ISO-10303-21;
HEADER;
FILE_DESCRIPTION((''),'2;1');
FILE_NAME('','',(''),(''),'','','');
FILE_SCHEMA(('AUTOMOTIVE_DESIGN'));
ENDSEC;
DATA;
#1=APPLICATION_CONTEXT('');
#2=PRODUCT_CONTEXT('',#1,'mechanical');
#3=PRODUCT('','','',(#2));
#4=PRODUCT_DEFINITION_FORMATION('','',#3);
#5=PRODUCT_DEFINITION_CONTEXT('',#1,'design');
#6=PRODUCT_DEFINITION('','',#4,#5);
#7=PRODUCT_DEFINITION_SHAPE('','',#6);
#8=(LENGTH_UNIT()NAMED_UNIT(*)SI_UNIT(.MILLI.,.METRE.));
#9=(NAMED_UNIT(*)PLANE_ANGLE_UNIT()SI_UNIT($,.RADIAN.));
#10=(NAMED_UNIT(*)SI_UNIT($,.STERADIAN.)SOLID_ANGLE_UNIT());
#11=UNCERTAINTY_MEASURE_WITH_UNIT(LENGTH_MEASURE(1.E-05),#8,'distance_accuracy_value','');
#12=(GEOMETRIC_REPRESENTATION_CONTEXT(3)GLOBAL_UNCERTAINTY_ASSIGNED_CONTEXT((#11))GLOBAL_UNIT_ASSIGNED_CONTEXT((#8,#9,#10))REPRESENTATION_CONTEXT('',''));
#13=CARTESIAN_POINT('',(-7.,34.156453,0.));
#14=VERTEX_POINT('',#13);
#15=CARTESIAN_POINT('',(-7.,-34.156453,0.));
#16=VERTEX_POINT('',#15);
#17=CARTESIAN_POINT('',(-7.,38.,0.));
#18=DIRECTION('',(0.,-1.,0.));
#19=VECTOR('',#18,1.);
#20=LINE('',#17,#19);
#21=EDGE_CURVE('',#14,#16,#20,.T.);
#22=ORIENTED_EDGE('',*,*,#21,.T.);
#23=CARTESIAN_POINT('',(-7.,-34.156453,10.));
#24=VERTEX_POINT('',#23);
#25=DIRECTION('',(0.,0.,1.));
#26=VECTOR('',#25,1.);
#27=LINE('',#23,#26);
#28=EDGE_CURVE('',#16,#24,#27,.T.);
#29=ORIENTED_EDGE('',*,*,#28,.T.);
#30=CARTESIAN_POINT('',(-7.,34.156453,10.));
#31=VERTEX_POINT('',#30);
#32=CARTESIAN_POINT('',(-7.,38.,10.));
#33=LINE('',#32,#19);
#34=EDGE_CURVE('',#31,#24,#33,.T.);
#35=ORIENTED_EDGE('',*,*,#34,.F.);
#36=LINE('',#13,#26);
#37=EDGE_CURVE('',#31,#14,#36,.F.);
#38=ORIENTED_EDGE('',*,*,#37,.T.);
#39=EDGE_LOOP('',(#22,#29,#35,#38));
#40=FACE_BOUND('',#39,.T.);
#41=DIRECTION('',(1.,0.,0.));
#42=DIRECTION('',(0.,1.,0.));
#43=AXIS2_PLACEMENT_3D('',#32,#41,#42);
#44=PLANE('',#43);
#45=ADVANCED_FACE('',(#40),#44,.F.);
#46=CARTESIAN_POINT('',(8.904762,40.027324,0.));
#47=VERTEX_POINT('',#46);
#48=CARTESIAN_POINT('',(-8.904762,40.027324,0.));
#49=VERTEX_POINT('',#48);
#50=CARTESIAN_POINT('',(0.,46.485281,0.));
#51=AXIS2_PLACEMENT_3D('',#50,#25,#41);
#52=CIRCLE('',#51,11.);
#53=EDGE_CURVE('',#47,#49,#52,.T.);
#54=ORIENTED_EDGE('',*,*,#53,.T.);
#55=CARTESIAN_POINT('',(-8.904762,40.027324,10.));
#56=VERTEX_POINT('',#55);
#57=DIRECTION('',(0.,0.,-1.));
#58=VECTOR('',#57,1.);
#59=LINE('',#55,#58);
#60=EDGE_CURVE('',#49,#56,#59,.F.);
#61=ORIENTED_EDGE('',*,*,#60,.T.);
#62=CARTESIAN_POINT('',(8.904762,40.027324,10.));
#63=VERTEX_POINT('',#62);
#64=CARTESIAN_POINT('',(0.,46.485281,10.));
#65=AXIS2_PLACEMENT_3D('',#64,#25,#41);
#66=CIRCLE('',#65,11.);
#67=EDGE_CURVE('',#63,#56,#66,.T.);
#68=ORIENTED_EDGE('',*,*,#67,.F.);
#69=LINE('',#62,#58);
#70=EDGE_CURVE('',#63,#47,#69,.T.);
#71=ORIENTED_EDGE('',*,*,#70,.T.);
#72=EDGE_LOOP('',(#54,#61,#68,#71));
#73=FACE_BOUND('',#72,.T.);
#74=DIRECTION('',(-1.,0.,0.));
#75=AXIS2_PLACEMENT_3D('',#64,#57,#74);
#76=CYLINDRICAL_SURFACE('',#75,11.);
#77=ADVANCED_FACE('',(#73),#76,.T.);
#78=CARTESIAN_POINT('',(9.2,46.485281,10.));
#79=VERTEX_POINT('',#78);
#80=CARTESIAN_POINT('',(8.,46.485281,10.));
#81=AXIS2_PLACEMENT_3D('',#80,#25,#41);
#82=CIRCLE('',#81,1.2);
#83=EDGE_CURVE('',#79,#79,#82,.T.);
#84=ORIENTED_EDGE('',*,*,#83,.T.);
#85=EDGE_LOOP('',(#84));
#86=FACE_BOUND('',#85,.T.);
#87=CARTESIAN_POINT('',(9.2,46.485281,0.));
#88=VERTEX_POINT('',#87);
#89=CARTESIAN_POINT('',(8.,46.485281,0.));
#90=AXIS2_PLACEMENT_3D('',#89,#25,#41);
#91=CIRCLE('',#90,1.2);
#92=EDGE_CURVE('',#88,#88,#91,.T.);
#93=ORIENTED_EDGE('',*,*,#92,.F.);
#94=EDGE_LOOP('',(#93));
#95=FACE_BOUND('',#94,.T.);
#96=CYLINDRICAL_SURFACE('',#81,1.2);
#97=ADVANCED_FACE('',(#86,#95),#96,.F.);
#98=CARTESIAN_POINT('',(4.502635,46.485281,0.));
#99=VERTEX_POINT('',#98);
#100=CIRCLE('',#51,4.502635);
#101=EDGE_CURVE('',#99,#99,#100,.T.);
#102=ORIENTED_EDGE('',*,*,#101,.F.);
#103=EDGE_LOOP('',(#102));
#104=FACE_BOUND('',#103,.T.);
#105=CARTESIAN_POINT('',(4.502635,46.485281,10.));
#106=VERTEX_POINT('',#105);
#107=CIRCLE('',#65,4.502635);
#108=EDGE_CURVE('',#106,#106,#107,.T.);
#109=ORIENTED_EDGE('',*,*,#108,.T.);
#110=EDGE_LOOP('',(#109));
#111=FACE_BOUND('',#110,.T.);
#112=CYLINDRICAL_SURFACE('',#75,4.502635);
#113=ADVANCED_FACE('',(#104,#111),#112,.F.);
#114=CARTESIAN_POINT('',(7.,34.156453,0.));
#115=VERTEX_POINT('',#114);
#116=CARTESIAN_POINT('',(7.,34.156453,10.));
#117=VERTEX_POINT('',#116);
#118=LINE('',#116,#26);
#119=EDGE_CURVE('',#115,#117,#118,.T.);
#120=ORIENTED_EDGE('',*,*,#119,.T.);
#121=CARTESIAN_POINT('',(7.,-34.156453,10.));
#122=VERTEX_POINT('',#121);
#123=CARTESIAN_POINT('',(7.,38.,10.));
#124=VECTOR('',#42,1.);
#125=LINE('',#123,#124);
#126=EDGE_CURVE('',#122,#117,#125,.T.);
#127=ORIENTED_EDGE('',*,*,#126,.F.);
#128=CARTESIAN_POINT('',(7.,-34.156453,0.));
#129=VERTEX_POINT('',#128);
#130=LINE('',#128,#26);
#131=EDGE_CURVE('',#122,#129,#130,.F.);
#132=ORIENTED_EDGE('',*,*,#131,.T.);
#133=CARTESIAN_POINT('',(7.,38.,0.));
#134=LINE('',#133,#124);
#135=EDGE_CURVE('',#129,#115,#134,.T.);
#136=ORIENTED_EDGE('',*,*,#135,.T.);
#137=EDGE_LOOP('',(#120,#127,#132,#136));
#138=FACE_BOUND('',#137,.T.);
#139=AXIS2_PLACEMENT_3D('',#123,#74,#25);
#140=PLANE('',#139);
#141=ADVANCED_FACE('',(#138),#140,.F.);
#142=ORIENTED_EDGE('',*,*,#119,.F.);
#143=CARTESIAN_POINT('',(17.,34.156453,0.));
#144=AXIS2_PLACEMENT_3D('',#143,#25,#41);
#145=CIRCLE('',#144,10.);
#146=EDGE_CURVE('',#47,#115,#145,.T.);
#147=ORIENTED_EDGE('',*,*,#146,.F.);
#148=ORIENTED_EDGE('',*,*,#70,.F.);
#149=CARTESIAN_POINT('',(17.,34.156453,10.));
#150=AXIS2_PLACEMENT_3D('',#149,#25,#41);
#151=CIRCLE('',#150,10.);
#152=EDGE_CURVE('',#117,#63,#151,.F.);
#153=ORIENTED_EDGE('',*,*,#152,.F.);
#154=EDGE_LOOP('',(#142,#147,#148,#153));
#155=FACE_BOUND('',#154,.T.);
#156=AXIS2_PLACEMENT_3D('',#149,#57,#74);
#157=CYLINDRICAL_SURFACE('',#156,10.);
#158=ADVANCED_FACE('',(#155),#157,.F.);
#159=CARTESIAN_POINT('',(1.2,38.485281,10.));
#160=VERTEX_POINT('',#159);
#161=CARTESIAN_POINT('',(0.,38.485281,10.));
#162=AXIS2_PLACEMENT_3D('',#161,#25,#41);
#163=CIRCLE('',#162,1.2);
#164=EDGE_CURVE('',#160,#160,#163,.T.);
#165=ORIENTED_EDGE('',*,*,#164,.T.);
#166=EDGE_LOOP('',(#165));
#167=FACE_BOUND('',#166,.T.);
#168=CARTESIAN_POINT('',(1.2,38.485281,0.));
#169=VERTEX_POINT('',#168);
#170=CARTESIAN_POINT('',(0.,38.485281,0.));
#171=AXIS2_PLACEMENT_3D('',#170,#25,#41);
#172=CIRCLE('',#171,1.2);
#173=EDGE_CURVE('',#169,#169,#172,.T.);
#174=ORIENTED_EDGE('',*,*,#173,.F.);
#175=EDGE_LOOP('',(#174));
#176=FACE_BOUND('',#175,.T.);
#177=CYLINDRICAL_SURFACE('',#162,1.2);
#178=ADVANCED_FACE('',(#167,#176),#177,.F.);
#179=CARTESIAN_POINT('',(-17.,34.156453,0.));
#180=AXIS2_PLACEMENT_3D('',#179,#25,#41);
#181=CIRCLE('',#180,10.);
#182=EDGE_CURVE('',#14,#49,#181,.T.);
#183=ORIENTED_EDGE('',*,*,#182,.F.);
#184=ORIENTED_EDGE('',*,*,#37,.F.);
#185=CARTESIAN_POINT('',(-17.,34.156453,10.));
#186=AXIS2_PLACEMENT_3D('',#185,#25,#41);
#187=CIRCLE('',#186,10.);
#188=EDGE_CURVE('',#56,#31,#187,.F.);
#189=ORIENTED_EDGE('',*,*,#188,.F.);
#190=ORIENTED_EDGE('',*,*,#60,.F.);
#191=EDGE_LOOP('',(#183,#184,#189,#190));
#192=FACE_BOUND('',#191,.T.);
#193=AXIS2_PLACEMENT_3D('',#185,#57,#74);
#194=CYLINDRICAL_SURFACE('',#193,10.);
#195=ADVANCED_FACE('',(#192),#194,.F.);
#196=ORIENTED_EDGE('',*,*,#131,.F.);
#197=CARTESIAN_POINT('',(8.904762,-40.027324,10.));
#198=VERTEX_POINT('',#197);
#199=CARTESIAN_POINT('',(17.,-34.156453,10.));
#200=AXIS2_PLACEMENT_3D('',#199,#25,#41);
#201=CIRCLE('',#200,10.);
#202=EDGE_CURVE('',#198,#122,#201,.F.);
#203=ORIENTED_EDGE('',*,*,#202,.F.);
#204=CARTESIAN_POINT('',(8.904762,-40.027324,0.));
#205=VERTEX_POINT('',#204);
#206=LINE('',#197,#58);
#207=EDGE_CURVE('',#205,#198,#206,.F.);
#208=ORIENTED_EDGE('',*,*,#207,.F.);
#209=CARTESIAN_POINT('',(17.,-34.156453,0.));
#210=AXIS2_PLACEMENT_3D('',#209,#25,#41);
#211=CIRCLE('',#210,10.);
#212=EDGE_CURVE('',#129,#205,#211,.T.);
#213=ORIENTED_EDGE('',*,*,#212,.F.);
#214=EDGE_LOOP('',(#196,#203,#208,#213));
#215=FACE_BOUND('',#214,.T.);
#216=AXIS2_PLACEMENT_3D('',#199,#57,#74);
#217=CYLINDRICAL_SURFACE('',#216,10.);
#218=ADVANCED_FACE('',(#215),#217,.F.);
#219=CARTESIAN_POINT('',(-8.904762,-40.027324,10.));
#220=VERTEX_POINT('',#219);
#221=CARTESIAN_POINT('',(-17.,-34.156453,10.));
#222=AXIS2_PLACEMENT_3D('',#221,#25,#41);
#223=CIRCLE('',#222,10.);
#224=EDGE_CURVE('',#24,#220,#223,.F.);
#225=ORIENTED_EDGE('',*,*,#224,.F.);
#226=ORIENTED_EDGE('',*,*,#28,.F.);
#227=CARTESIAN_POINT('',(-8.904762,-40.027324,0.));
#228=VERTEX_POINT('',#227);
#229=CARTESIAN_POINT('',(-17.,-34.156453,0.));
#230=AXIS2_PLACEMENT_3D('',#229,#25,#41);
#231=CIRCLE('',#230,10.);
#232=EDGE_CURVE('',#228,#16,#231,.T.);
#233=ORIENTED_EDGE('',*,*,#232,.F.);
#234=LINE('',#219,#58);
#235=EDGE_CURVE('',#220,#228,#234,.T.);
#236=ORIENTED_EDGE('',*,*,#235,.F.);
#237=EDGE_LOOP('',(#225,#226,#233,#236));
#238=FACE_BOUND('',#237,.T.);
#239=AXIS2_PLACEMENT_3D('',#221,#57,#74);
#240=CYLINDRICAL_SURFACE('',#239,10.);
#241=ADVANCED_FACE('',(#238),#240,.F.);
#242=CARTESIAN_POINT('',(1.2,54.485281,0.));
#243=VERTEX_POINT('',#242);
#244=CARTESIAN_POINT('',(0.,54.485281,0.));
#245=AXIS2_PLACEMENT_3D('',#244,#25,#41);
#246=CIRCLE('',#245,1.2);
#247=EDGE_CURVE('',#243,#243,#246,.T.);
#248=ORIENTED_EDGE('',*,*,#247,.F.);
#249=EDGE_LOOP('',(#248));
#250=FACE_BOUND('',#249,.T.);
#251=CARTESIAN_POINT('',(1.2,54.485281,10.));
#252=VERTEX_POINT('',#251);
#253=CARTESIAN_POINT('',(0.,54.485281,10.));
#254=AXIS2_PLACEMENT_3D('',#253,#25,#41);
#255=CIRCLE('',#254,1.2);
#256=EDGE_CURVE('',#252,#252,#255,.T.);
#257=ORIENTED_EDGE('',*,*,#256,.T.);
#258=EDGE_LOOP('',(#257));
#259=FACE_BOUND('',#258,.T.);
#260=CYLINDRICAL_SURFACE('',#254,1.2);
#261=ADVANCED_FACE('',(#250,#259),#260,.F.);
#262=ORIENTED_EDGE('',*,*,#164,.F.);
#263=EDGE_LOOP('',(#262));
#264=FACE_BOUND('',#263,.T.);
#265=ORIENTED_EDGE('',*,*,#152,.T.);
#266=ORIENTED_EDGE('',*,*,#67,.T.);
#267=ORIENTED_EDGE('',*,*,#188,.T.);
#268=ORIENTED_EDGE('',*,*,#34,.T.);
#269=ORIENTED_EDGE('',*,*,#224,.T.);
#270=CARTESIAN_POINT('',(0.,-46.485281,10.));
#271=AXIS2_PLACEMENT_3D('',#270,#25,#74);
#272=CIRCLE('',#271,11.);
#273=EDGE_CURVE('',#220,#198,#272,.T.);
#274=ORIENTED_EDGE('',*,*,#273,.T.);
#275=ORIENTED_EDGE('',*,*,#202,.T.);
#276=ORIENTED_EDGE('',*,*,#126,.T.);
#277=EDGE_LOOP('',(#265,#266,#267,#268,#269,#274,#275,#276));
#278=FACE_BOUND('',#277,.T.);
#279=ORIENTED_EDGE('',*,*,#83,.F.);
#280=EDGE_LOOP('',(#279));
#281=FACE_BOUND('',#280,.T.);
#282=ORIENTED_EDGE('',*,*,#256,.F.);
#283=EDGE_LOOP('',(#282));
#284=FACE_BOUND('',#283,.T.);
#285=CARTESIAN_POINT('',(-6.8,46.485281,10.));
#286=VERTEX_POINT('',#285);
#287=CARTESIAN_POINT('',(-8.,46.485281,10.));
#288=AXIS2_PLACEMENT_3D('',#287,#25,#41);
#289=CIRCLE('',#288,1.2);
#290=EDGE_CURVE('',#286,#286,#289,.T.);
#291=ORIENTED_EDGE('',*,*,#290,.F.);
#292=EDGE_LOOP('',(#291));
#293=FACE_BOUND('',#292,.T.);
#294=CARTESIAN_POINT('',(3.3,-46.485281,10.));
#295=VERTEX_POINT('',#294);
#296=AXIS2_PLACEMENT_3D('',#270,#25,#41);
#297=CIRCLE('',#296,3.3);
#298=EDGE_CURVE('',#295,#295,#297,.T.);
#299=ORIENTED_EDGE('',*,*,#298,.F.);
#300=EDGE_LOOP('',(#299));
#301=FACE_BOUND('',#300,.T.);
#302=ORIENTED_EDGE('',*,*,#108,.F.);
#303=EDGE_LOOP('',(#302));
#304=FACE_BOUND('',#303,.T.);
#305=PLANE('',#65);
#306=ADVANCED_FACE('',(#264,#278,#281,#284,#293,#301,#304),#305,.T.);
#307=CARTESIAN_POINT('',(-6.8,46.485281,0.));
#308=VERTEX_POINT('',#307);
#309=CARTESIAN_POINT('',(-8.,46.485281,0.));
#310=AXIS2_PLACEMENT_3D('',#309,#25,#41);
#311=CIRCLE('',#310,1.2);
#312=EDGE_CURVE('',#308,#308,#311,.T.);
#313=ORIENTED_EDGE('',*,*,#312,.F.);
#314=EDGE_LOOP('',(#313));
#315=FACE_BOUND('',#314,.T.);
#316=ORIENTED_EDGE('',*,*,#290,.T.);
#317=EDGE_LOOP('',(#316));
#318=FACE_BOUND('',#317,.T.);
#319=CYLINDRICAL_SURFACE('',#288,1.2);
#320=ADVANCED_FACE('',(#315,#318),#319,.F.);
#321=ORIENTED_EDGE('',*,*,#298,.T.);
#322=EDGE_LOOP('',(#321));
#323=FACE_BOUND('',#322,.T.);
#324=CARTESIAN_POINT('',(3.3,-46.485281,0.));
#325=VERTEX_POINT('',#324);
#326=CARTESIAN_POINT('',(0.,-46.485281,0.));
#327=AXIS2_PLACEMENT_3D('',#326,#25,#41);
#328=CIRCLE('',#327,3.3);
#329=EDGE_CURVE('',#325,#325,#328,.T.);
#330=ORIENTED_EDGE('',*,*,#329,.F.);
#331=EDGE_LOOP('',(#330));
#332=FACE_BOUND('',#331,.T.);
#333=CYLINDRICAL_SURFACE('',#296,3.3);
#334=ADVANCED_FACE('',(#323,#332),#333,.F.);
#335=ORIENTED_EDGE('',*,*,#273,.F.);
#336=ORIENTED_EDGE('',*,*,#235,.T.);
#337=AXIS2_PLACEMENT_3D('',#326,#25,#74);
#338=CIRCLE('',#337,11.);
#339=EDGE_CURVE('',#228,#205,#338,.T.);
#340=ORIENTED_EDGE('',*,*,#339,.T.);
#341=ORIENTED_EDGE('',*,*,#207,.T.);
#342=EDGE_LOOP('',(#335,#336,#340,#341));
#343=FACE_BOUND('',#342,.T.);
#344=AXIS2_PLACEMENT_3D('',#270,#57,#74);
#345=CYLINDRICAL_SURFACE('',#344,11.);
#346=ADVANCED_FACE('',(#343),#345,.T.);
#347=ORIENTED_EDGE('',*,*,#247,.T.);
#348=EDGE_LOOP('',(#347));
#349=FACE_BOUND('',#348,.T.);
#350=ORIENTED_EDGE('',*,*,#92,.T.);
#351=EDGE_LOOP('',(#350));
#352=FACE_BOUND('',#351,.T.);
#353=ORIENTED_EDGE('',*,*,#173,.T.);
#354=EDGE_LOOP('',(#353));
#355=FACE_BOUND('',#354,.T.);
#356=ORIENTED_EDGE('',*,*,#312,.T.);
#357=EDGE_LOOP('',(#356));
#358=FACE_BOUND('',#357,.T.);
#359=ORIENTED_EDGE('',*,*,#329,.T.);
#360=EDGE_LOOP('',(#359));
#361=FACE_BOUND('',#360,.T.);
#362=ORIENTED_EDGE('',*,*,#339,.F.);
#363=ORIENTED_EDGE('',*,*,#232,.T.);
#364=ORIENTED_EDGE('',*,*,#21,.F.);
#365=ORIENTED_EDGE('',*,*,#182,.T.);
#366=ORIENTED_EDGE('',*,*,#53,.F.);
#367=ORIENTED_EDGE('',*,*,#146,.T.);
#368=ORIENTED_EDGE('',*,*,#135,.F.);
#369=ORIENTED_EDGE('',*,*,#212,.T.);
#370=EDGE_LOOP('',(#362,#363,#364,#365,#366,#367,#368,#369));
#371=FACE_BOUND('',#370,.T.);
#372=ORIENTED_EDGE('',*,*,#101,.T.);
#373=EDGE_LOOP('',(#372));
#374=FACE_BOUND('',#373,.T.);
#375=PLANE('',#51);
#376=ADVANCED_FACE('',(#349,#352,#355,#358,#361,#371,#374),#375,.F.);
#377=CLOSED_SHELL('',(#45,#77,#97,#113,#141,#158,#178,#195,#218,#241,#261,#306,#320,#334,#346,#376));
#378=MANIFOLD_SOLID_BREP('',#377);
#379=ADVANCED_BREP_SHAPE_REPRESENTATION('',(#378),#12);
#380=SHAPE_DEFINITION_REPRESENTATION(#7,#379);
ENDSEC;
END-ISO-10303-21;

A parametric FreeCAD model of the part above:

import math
import FreeCAD as App
import Part
import Sketcher
Q = App.Units.Quantity


def edges_at(feature, points):
    """Names of the edges that pass closest to the given points."""
    edges = feature.Shape.Edges
    near = lambda p: min(range(len(edges)), key=lambda i: edges[i].distToShape(Part.Vertex(*p))[0])
    return sorted({f"Edge{near(p) + 1}" for p in points})

doc = App.newDocument("Part")
body = doc.addObject("PartDesign::Body", "Body")

# Sketch on XY plane
sketch1 = doc.addObject("Sketcher::SketchObject", "Sketch")
body.addObject(sketch1)
sketch1.AttachmentSupport = (doc.XY_Plane, [""])
sketch1.MapMode = "FlatFace"
sketch1.addGeometry([
    Part.LineSegment(App.Vector(-7, 38, 0), App.Vector(-7, -38, 0)),  # 0
    Part.ArcOfCircle(Part.Circle(App.Vector(0, -46.5, 0), App.Vector(0, 0, 1), 11), math.radians(130), math.radians(410)),  # 1
    Part.LineSegment(App.Vector(7, -38, 0), App.Vector(7, 38, 0)),  # 2
    Part.ArcOfCircle(Part.Circle(App.Vector(0, 46.5, 0), App.Vector(0, 0, 1), 11), math.radians(-50), math.radians(230)),  # 3
    Part.Circle(App.Vector(0, 46.5, 0), App.Vector(0, 0, 1), 4.5),  # 4
], False)
sketch1.addConstraint([
    Sketcher.Constraint("Coincident", 0, 2, 1, 1),
    Sketcher.Constraint("Coincident", 1, 2, 2, 1),
    Sketcher.Constraint("Coincident", 2, 2, 3, 1),
    Sketcher.Constraint("Coincident", 3, 2, 0, 1),
    Sketcher.Constraint("Vertical", 0),
    Sketcher.Constraint("Vertical", 2),
    Sketcher.Constraint("Coincident", 4, 3, 3, 3),
    Sketcher.Constraint("Equal", 1, 3),
    Sketcher.Constraint("Symmetric", 1, 3, 3, 3, -1, 1),
    Sketcher.Constraint("Symmetric", 0, 2, 1, 2, -2),
    Sketcher.Constraint("Radius", 1, Q("11 mm")),
    Sketcher.Constraint("DistanceY", 0, 2, 0, 1, Q("76 mm")),
    Sketcher.Constraint("DistanceX", 0, 2, -1, 1, Q("7 mm")),
    Sketcher.Constraint("Diameter", 4, Q("9.005271 mm")),
])
pad1 = doc.addObject("PartDesign::Pad", "Pad")
body.addObject(pad1)
pad1.Profile = sketch1
pad1.Length = 10

# Sketch on XY plane
sketch2 = doc.addObject("Sketcher::SketchObject", "Sketch001")
body.addObject(sketch2)
sketch2.AttachmentSupport = (doc.XY_Plane, [""])
sketch2.MapMode = "FlatFace"
sketch2.AttachmentOffset = App.Placement(App.Vector(0, 0, 10), App.Rotation())
sketch2.addGeometry([
    Part.Circle(App.Vector(-8, 46.5, 0), App.Vector(0, 0, 1), 1.2),
    Part.Circle(App.Vector(0, 54.5, 0), App.Vector(0, 0, 1), 1.2),
    Part.Circle(App.Vector(8, 46.5, 0), App.Vector(0, 0, 1), 1.2),
    Part.Circle(App.Vector(0, 38.5, 0), App.Vector(0, 0, 1), 1.2),
], False)
sketch2.addConstraint([
    Sketcher.Constraint("Equal", 0, 1),
    Sketcher.Constraint("Equal", 1, 2),
    Sketcher.Constraint("Equal", 2, 3),
    Sketcher.Constraint("Symmetric", 0, 3, 2, 3, -2),
    Sketcher.Constraint("PointOnObject", 1, 3, -2),
    Sketcher.Constraint("PointOnObject", 3, 3, -2),
    Sketcher.Constraint("Diameter", 0, Q("2.4 mm")),
    Sketcher.Constraint("DistanceX", 0, 3, -1, 1, Q("8 mm")),
    Sketcher.Constraint("DistanceY", 0, 3, 1, 3, Q("8 mm")),
    Sketcher.Constraint("DistanceY", 3, 3, 0, 3, Q("8 mm")),
    Sketcher.Constraint("DistanceY", -1, 1, 0, 3, Q("46.485281 mm")),
])
doc.recompute()
hole = doc.addObject("PartDesign::Hole", "Hole")
body.addObject(hole)
hole.Profile = sketch2
hole.ThreadType = "None"
hole.Diameter = 2.4
hole.DepthType = "ThroughAll"
doc.recompute()

fillet = doc.addObject("PartDesign::Fillet", "Fillet")
body.addObject(fillet)
fillet.Base = (hole, edges_at(hole, [
    (7, 38, 5),
    (7, -38, 5),
    (-7, -38, 5),
    (-7, 38, 5),
]))
fillet.Radius = 10

# Sketch on XY plane
sketch3 = doc.addObject("Sketcher::SketchObject", "Sketch002")
body.addObject(sketch3)
sketch3.AttachmentSupport = (doc.XY_Plane, [""])
sketch3.MapMode = "FlatFace"
sketch3.AttachmentOffset = App.Placement(App.Vector(0, 0, 10), App.Rotation())
sketch3.addGeometry(Part.Circle(App.Vector(0, -46.5, 0), App.Vector(0, 0, 1), 3.3), False)
sketch3.addConstraint([
    Sketcher.Constraint("PointOnObject", 0, 3, -2),
    Sketcher.Constraint("Diameter", 0, Q("6.6 mm")),
    Sketcher.Constraint("DistanceY", 0, 3, -1, 1, Q("46.485281 mm")),
])
doc.recompute()
hole2 = doc.addObject("PartDesign::Hole", "Hole001")
body.addObject(hole2)
hole2.Profile = sketch3
hole2.ThreadType = "None"
hole2.Diameter = 6.6
hole2.DepthType = "ThroughAll"

doc.recompute()
